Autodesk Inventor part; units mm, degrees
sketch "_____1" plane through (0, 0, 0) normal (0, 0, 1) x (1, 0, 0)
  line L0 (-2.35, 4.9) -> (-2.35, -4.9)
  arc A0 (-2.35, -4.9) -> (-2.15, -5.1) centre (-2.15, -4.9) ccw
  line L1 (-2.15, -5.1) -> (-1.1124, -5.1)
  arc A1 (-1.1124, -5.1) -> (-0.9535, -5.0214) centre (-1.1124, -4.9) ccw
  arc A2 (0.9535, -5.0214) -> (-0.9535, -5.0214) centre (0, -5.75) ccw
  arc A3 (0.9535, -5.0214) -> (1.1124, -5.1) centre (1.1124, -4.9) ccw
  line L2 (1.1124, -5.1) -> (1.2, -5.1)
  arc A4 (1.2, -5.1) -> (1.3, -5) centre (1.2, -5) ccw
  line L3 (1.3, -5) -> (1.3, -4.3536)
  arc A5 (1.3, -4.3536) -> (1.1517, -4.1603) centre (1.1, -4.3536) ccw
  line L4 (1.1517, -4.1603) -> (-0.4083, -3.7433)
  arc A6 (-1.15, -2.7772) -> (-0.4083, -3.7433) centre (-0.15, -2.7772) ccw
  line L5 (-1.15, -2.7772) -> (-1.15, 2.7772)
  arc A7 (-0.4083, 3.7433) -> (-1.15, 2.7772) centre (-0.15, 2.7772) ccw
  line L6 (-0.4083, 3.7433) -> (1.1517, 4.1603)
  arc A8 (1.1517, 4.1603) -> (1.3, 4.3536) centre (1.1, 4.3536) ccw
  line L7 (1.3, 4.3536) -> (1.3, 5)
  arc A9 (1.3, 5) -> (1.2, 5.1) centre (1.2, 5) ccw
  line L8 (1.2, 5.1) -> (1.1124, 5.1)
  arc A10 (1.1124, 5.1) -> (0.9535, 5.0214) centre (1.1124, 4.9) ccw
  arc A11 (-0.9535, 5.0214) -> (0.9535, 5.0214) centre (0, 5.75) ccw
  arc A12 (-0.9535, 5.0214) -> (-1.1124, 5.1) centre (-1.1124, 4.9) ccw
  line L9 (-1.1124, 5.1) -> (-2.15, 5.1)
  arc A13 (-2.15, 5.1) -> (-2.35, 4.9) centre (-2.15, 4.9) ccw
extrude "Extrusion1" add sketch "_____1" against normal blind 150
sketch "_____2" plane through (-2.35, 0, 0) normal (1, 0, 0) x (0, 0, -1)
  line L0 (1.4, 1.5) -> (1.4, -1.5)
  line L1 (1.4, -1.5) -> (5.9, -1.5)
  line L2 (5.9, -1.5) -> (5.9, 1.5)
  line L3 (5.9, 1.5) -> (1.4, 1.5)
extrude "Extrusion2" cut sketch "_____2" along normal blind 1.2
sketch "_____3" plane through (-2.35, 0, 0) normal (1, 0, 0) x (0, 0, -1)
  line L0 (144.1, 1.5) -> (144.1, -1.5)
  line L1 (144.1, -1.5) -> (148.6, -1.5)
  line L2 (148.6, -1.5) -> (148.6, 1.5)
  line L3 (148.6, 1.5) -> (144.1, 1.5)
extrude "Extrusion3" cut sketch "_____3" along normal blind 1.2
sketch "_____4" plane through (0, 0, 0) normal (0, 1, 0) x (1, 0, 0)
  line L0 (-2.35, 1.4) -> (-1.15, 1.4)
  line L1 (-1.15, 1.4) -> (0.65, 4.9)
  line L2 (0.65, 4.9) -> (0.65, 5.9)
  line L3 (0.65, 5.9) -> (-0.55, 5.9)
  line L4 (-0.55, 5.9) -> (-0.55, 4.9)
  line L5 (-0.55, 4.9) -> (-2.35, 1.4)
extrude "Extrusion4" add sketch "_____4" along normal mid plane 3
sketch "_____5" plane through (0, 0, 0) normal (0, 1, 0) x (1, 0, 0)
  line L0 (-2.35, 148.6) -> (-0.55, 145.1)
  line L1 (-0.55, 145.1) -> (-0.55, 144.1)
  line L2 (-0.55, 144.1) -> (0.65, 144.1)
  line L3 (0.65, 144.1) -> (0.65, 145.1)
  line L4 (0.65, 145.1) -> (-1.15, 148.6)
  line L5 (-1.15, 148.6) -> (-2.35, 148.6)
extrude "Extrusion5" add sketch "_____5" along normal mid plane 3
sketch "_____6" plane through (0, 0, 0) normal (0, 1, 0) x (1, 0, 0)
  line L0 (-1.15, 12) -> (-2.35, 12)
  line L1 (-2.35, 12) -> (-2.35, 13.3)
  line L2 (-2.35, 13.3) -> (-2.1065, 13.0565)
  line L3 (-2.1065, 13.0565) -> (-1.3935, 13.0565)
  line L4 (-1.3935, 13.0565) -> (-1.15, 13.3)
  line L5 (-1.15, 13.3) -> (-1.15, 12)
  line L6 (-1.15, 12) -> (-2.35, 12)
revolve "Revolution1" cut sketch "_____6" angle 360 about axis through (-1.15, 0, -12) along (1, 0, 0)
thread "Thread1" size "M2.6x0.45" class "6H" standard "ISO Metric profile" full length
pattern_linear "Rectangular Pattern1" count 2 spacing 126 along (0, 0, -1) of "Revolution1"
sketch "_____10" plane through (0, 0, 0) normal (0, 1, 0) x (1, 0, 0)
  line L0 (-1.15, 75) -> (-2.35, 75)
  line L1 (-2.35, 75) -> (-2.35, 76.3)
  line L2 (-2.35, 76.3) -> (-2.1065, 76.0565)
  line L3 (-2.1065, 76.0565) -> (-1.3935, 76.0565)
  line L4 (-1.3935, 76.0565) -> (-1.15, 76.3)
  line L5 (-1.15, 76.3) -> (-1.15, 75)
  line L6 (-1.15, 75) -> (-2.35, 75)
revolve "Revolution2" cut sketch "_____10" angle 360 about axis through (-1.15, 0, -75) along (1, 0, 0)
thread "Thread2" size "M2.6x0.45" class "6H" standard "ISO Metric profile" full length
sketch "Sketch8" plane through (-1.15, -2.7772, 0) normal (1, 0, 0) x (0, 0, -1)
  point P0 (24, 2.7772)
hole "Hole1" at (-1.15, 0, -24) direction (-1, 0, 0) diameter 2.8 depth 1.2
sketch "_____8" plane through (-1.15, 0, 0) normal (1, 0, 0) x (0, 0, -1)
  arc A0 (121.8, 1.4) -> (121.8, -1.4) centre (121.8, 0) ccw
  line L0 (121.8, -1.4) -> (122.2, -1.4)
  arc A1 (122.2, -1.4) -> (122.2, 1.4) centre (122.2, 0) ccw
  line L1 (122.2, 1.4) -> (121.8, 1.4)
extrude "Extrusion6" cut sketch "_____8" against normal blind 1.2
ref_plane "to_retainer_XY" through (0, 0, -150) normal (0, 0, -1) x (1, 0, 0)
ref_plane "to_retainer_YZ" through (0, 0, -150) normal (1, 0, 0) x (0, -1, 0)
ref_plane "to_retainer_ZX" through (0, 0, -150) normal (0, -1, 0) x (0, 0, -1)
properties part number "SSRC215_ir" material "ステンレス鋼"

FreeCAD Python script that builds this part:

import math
import FreeCAD as App
import Part
import Sketcher
from FreeCAD import Vector

doc = App.newDocument("Part")
params = doc.addObject("Spreadsheet::Sheet", "Params")
for row, (alias, value) in enumerate([
    ("sketch1_radius", "1 mm"),
    ("sketch1_radius2", "0.2 mm"),
    ("sketch1_radius3", "1.2 mm"),
    ("sketch1_radius4", "0.1 mm"),
    ("sketch1_height", "9.8 mm"),
    ("pad1_length", "150 mm"),
    ("sketch2_width", "3 mm"),
    ("sketch2_height", "4.5 mm"),
    ("pocket1_length", "1.2 mm"),
    ("sketch3_width", "3 mm"),
    ("sketch3_height", "4.5 mm"),
    ("pocket2_length", "1.2 mm"),
    ("sketch4_height", "1 mm"),
    ("sketch4_width", "1.2 mm"),
    ("pad2_length", "3 mm"),
    ("sketch5_height", "1 mm"),
    ("sketch5_width", "1.2 mm"),
    ("pad3_length", "3 mm"),
    ("sketch6_width", "1.2 mm"),
    ("sketch6_height", "1.3 mm"),
    ("groove_angle", "360 deg"),
    ("linearpattern_pitch", "126 mm"),
    ("sketch7_width", "1.2 mm"),
    ("sketch7_height", "1.3 mm"),
    ("groove2_angle", "360 deg"),
    ("sketch8_diameter", "2.8 mm"),
    ("hole_diameter", "2.8 mm"),
    ("hole_depth", "1.2 mm"),
    ("sketch9_radius", "1.4 mm"),
    ("sketch9_height", "0.4 mm"),
    ("pocket3_length", "1.2 mm"),
], start=1):
    params.set(f"A{row}", alias)
    params.set(f"B{row}", "=" + value)
    params.setAlias(f"B{row}", alias)

body = doc.addObject("PartDesign::Body", "Body")

# Sketch on XY plane
sketch1 = body.newObject("Sketcher::SketchObject", "Sketch")
sketch1.AttachmentSupport = (doc.getObject("XY_Plane"), [""])
sketch1.MapMode = "FlatFace"
sketch1.addGeometry([
    Part.ArcOfCircle(Part.Circle(Vector(-2.15, 4.9, 0), Vector(0, 0, 1), 0.2), math.radians(90), math.radians(180)),  # 0
    Part.LineSegment(Vector(-2.35, 4.9, 0), Vector(-2.35, -4.9, 0)),  # 1
    Part.ArcOfCircle(Part.Circle(Vector(-2.15, -4.9, 0), Vector(0, 0, 1), 0.2), math.radians(180), math.radians(270)),  # 2
    Part.LineSegment(Vector(-2.15, -5.1, 0), Vector(-1.11, -5.1, 0)),  # 3
    Part.ArcOfCircle(Part.Circle(Vector(-1.11, -4.9, 0), Vector(0, 0, 1), 0.2), math.radians(-90), math.radians(-37)),  # 4
    Part.ArcOfCircle(Part.Circle(Vector(0, -5.75, 0), Vector(0, 0, 1), 1.2), math.radians(37), math.radians(143)),  # 5
    Part.ArcOfCircle(Part.Circle(Vector(1.11, -4.9, 0), Vector(0, 0, 1), 0.2), math.radians(-143), math.radians(-90)),  # 6
    Part.LineSegment(Vector(1.11, -5.1, 0), Vector(1.2, -5.1, 0)),  # 7
    Part.ArcOfCircle(Part.Circle(Vector(1.2, -5, 0), Vector(0, 0, 1), 0.1), math.radians(-90), math.radians(0)),  # 8
    Part.LineSegment(Vector(1.3, -5, 0), Vector(1.3, -4.35, 0)),  # 9
    Part.ArcOfCircle(Part.Circle(Vector(1.1, -4.35, 0), Vector(0, 0, 1), 0.2), math.radians(0), math.radians(75)),  # 10
    Part.LineSegment(Vector(1.15, -4.16, 0), Vector(-0.41, -3.74, 0)),  # 11
    Part.ArcOfCircle(Part.Circle(Vector(-0.15, -2.78, 0), Vector(0, 0, 1), 1), math.radians(180), math.radians(255)),  # 12
    Part.LineSegment(Vector(-1.15, -2.78, 0), Vector(-1.15, 2.78, 0)),  # 13
    Part.ArcOfCircle(Part.Circle(Vector(-0.15, 2.78, 0), Vector(0, 0, 1), 1), math.radians(105), math.radians(180)),  # 14
    Part.LineSegment(Vector(-0.41, 3.74, 0), Vector(1.15, 4.16, 0)),  # 15
    Part.ArcOfCircle(Part.Circle(Vector(1.1, 4.35, 0), Vector(0, 0, 1), 0.2), math.radians(-75), math.radians(0)),  # 16
    Part.LineSegment(Vector(1.3, 4.35, 0), Vector(1.3, 5, 0)),  # 17
    Part.ArcOfCircle(Part.Circle(Vector(1.2, 5, 0), Vector(0, 0, 1), 0.1), math.radians(0), math.radians(90)),  # 18
    Part.LineSegment(Vector(1.2, 5.1, 0), Vector(1.11, 5.1, 0)),  # 19
    Part.ArcOfCircle(Part.Circle(Vector(1.11, 4.9, 0), Vector(0, 0, 1), 0.2), math.radians(90), math.radians(143)),  # 20
    Part.ArcOfCircle(Part.Circle(Vector(0, 5.75, 0), Vector(0, 0, 1), 1.2), math.radians(-143), math.radians(-37)),  # 21
    Part.ArcOfCircle(Part.Circle(Vector(-1.11, 4.9, 0), Vector(0, 0, 1), 0.2), math.radians(37), math.radians(90)),  # 22
    Part.LineSegment(Vector(-1.11, 5.1, 0), Vector(-2.15, 5.1, 0)),  # 23
], False)
sketch1.addConstraint([
    Sketcher.Constraint("Tangent", 0, 2, 1, 1),
    Sketcher.Constraint("Tangent", 1, 2, 2, 1),
    Sketcher.Constraint("Tangent", 2, 2, 3, 1),
    Sketcher.Constraint("Tangent", 3, 2, 4, 1),
    Sketcher.Constraint("Tangent", 4, 2, 5, 2),
    Sketcher.Constraint("Tangent", 5, 1, 6, 1),
    Sketcher.Constraint("Tangent", 6, 2, 7, 1),
    Sketcher.Constraint("Tangent", 7, 2, 8, 1),
    Sketcher.Constraint("Tangent", 8, 2, 9, 1),
    Sketcher.Constraint("Tangent", 9, 2, 10, 1),
    Sketcher.Constraint("Tangent", 10, 2, 11, 1),
    Sketcher.Constraint("Tangent", 11, 2, 12, 2),
    Sketcher.Constraint("Tangent", 12, 1, 13, 1),
    Sketcher.Constraint("Tangent", 13, 2, 14, 2),
    Sketcher.Constraint("Tangent", 14, 1, 15, 1),
    Sketcher.Constraint("Tangent", 15, 2, 16, 1),
    Sketcher.Constraint("Tangent", 16, 2, 17, 1),
    Sketcher.Constraint("Tangent", 17, 2, 18, 1),
    Sketcher.Constraint("Tangent", 18, 2, 19, 1),
    Sketcher.Constraint("Tangent", 19, 2, 20, 1),
    Sketcher.Constraint("Tangent", 20, 2, 21, 2),
    Sketcher.Constraint("Tangent", 21, 1, 22, 1),
    Sketcher.Constraint("Tangent", 22, 2, 23, 1),
    Sketcher.Constraint("Tangent", 23, 2, 0, 1),
    Sketcher.Constraint("Vertical", 1),
    Sketcher.Constraint("Horizontal", 3),
    Sketcher.Constraint("Horizontal", 7),
    Sketcher.Constraint("Vertical", 9),
    Sketcher.Constraint("Vertical", 13),
    Sketcher.Constraint("Vertical", 17),
    Sketcher.Constraint("Horizontal", 19),
    Sketcher.Constraint("Horizontal", 23),
    Sketcher.Constraint("Equal", 0, 2),
    Sketcher.Constraint("Equal", 2, 4),
    Sketcher.Constraint("Equal", 4, 6),
    Sketcher.Constraint("Equal", 6, 10),
    Sketcher.Constraint("Equal", 12, 14),
    Sketcher.Constraint("Equal", 10, 16),
    Sketcher.Constraint("Equal", 8, 18),
    Sketcher.Constraint("Equal", 16, 20),
    Sketcher.Constraint("Equal", 5, 21),
    Sketcher.Constraint("Equal", 20, 22),
    Sketcher.Constraint("Symmetric", 4, 3, 20, 3, -1, 1),
    Sketcher.Constraint("Symmetric", 6, 3, 22, 3, -1, 1),
    Sketcher.Constraint("Symmetric", 4, 3, 6, 3, -2),
    Sketcher.Constraint("Symmetric", 10, 3, 16, 3, -1),
    Sketcher.Constraint("Vertical", 11, 2, 14, 1),
    Sketcher.Constraint("Radius", 12, 1.0),
    Sketcher.Constraint("Radius", 0, 0.2),
    Sketcher.Constraint("Radius", 5, 1.2),
    Sketcher.Constraint("Radius", 8, 0.1),
    Sketcher.Constraint("DistanceY", 1, 2, 1, 1, 9.8),
    Sketcher.Constraint("DistanceX", 2, 3, 12, 3, 2.0),
    Sketcher.Constraint("DistanceX", -1, 1, 8, 3, 1.2),
    Sketcher.Constraint("DistanceX", 0, 3, -1, 1, 2.15),
    Sketcher.Constraint("DistanceY", 5, 3, -1, 1, 5.75),
    Sketcher.Constraint("DistanceX", 11, 2, 10, 2, 1.56),
    Sketcher.Constraint("DistanceY", 9, 1, 9, 2, 0.6464),
])
sketch1.setExpression("Constraints[47]", "Params.sketch1_radius")
sketch1.setExpression("Constraints[48]", "Params.sketch1_radius2")
sketch1.setExpression("Constraints[49]", "Params.sketch1_radius3")
sketch1.setExpression("Constraints[50]", "Params.sketch1_radius4")
sketch1.setExpression("Constraints[51]", "Params.sketch1_height")
pad1 = body.newObject("PartDesign::Pad", "Pad")
pad1.Profile = sketch1
pad1.setExpression("Length", "Params.pad1_length")
pad1.Reversed = True

# Sketch on YZ plane
sketch2 = body.newObject("Sketcher::SketchObject", "Sketch001")
sketch2.AttachmentSupport = (doc.getObject("YZ_Plane"), [""])
sketch2.MapMode = "FlatFace"
sketch2.AttachmentOffset = App.Placement(Vector(0, 0, -2.35), App.Rotation())
sketch2.addGeometry([
    Part.LineSegment(Vector(1.5, -5.9, 0), Vector(1.5, -1.4, 0)),
    Part.LineSegment(Vector(1.5, -1.4, 0), Vector(-1.5, -1.4, 0)),
    Part.LineSegment(Vector(-1.5, -1.4, 0), Vector(-1.5, -5.9, 0)),
    Part.LineSegment(Vector(-1.5, -5.9, 0), Vector(1.5, -5.9, 0)),
], False)
sketch2.addConstraint([
    Sketcher.Constraint("Coincident", 0, 2, 1, 1),
    Sketcher.Constraint("Coincident", 1, 2, 2, 1),
    Sketcher.Constraint("Coincident", 2, 2, 3, 1),
    Sketcher.Constraint("Coincident", 3, 2, 0, 1),
    Sketcher.Constraint("Vertical", 0),
    Sketcher.Constraint("Horizontal", 1),
    Sketcher.Constraint("Vertical", 2),
    Sketcher.Constraint("Horizontal", 3),
    Sketcher.Constraint("DistanceX", 1, 2, 1, 1, 3.0),
    Sketcher.Constraint("DistanceY", 0, 1, 0, 2, 4.5),
    Sketcher.Constraint("DistanceX", -1, 1, 0, 2, 1.5),
    Sketcher.Constraint("DistanceY", 0, 2, -1, 1, 1.4),
])
sketch2.setExpression("Constraints[8]", "Params.sketch2_width")
sketch2.setExpression("Constraints[9]", "Params.sketch2_height")
pocket1 = body.newObject("PartDesign::Pocket", "Pocket")
pocket1.Profile = sketch2
pocket1.setExpression("Length", "Params.pocket1_length")
pocket1.Reversed = True

# Sketch on YZ plane
sketch3 = body.newObject("Sketcher::SketchObject", "Sketch002")
sketch3.AttachmentSupport = (doc.getObject("YZ_Plane"), [""])
sketch3.MapMode = "FlatFace"
sketch3.AttachmentOffset = App.Placement(Vector(0, 0, -2.35), App.Rotation())
sketch3.addGeometry([
    Part.LineSegment(Vector(1.5, -148.6, 0), Vector(1.5, -144.1, 0)),
    Part.LineSegment(Vector(1.5, -144.1, 0), Vector(-1.5, -144.1, 0)),
    Part.LineSegment(Vector(-1.5, -144.1, 0), Vector(-1.5, -148.6, 0)),
    Part.LineSegment(Vector(-1.5, -148.6, 0), Vector(1.5, -148.6, 0)),
], False)
sketch3.addConstraint([
    Sketcher.Constraint("Coincident", 0, 2, 1, 1),
    Sketcher.Constraint("Coincident", 1, 2, 2, 1),
    Sketcher.Constraint("Coincident", 2, 2, 3, 1),
    Sketcher.Constraint("Coincident", 3, 2, 0, 1),
    Sketcher.Constraint("Vertical", 0),
    Sketcher.Constraint("Horizontal", 1),
    Sketcher.Constraint("Vertical", 2),
    Sketcher.Constraint("Horizontal", 3),
    Sketcher.Constraint("DistanceX", 1, 2, 1, 1, 3.0),
    Sketcher.Constraint("DistanceY", 0, 1, 0, 2, 4.5),
    Sketcher.Constraint("DistanceX", -1, 1, 0, 2, 1.5),
    Sketcher.Constraint("DistanceY", 0, 2, -1, 1, 144.1),
])
sketch3.setExpression("Constraints[8]", "Params.sketch3_width")
sketch3.setExpression("Constraints[9]", "Params.sketch3_height")
pocket2 = body.newObject("PartDesign::Pocket", "Pocket001")
pocket2.Profile = sketch3
pocket2.setExpression("Length", "Params.pocket2_length")
pocket2.Reversed = True

# Sketch on XZ plane
sketch4 = body.newObject("Sketcher::SketchObject", "Sketch003")
sketch4.AttachmentSupport = (doc.getObject("XZ_Plane"), [""])
sketch4.MapMode = "FlatFace"
sketch4.addGeometry([
    Part.LineSegment(Vector(-0.6, -4.9, 0), Vector(-2.4, -1.4, 0)),  # 0
    Part.LineSegment(Vector(-2.4, -1.4, 0), Vector(-1.1, -1.4, 0)),  # 1
    Part.LineSegment(Vector(-1.1, -1.4, 0), Vector(0.7, -4.9, 0)),  # 2
    Part.LineSegment(Vector(0.7, -4.9, 0), Vector(0.7, -5.9, 0)),  # 3
    Part.LineSegment(Vector(0.7, -5.9, 0), Vector(-0.6, -5.9, 0)),  # 4
    Part.LineSegment(Vector(-0.6, -5.9, 0), Vector(-0.6, -4.9, 0)),  # 5
], False)
sketch4.addConstraint([
    Sketcher.Constraint("Coincident", 0, 2, 1, 1),
    Sketcher.Constraint("Coincident", 1, 2, 2, 1),
    Sketcher.Constraint("Coincident", 2, 2, 3, 1),
    Sketcher.Constraint("Coincident", 3, 2, 4, 1),
    Sketcher.Constraint("Coincident", 4, 2, 5, 1),
    Sketcher.Constraint("Coincident", 5, 2, 0, 1),
    Sketcher.Constraint("Horizontal", 1),
    Sketcher.Constraint("Vertical", 3),
    Sketcher.Constraint("Horizontal", 4),
    Sketcher.Constraint("Vertical", 5),
    Sketcher.Constraint("Parallel", 0, 2),
    Sketcher.Constraint("Horizontal", 2, 2, 5, 2),
    Sketcher.Constraint("DistanceY", 3, 2, 3, 1, 1.0),
    Sketcher.Constraint("DistanceX", 1, 1, 1, 2, 1.2),
    Sketcher.Constraint("DistanceX", 0, 2, 2, 2, 3.0),
    Sketcher.Constraint("DistanceY", 0, 2, -1, 1, 1.4),
    Sketcher.Constraint("DistanceY", 2, 2, -1, 1, 4.9),
    Sketcher.Constraint("DistanceX", 0, 2, -1, 1, 2.35),
])
sketch4.setExpression("Constraints[12]", "Params.sketch4_height")
sketch4.setExpression("Constraints[13]", "Params.sketch4_width")
pad2 = body.newObject("PartDesign::Pad", "Pad001")
pad2.Profile = sketch4
pad2.setExpression("Length", "Params.pad2_length")
pad2.Midplane = True

# Sketch on XZ plane
sketch5 = body.newObject("Sketcher::SketchObject", "Sketch004")
sketch5.AttachmentSupport = (doc.getObject("XZ_Plane"), [""])
sketch5.MapMode = "FlatFace"
sketch5.addGeometry([
    Part.LineSegment(Vector(-1.1, -148.6, 0), Vector(-2.4, -148.6, 0)),  # 0
    Part.LineSegment(Vector(-2.4, -148.6, 0), Vector(-0.6, -145.1, 0)),  # 1
    Part.LineSegment(Vector(-0.6, -145.1, 0), Vector(-0.6, -144.1, 0)),  # 2
    Part.LineSegment(Vector(-0.6, -144.1, 0), Vector(0.7, -144.1, 0)),  # 3
    Part.LineSegment(Vector(0.7, -144.1, 0), Vector(0.7, -145.1, 0)),  # 4
    Part.LineSegment(Vector(0.7, -145.1, 0), Vector(-1.1, -148.6, 0)),  # 5
], False)
sketch5.addConstraint([
    Sketcher.Constraint("Coincident", 0, 2, 1, 1),
    Sketcher.Constraint("Coincident", 1, 2, 2, 1),
    Sketcher.Constraint("Coincident", 2, 2, 3, 1),
    Sketcher.Constraint("Coincident", 3, 2, 4, 1),
    Sketcher.Constraint("Coincident", 4, 2, 5, 1),
    Sketcher.Constraint("Coincident", 5, 2, 0, 1),
    Sketcher.Constraint("Horizontal", 0),
    Sketcher.Constraint("Vertical", 2),
    Sketcher.Constraint("Horizontal", 3),
    Sketcher.Constraint("Vertical", 4),
    Sketcher.Constraint("Parallel", 1, 5),
    Sketcher.Constraint("Horizontal", 1, 2, 4, 2),
    Sketcher.Constraint("DistanceY", 2, 1, 2, 2, 1.0),
    Sketcher.Constraint("DistanceX", 0, 2, 0, 1, 1.2),
    Sketcher.Constraint("DistanceX", 0, 2, 3, 2, 3.0),
    Sketcher.Constraint("DistanceY", 0, 2, -1, 1, 148.6),
    Sketcher.Constraint("DistanceY", 1, 2, -1, 1, 145.1),
    Sketcher.Constraint("DistanceX", 0, 2, -1, 1, 2.35),
])
sketch5.setExpression("Constraints[12]", "Params.sketch5_height")
sketch5.setExpression("Constraints[13]", "Params.sketch5_width")
pad3 = body.newObject("PartDesign::Pad", "Pad002")
pad3.Profile = sketch5
pad3.setExpression("Length", "Params.pad3_length")
pad3.Midplane = True

# Sketch on XZ plane
sketch6 = body.newObject("Sketcher::SketchObject", "Sketch005")
sketch6.AttachmentSupport = (doc.getObject("XZ_Plane"), [""])
sketch6.MapMode = "FlatFace"
sketch6.addGeometry([
    Part.LineSegment(Vector(-2.35, -12, 0), Vector(-1.15, -12, 0)),  # 0
    Part.LineSegment(Vector(-1.15, -12, 0), Vector(-1.15, -13.3, 0)),  # 1
    Part.LineSegment(Vector(-1.15, -13.3, 0), Vector(-1.39, -13.06, 0)),  # 2
    Part.LineSegment(Vector(-1.39, -13.06, 0), Vector(-2.11, -13.06, 0)),  # 3
    Part.LineSegment(Vector(-2.11, -13.06, 0), Vector(-2.35, -13.3, 0)),  # 4
    Part.LineSegment(Vector(-2.35, -13.3, 0), Vector(-2.35, -12, 0)),  # 5
], False)
sketch6.addGeometry(Part.LineSegment(Vector(-2.35, -12, 0), Vector(-1.15, -12, 0)), True)  # axis
sketch6.addConstraint([
    Sketcher.Constraint("Coincident", 0, 2, 1, 1),
    Sketcher.Constraint("Coincident", 1, 2, 2, 1),
    Sketcher.Constraint("Coincident", 2, 2, 3, 1),
    Sketcher.Constraint("Coincident", 3, 2, 4, 1),
    Sketcher.Constraint("Coincident", 4, 2, 5, 1),
    Sketcher.Constraint("Coincident", 5, 2, 0, 1),
    Sketcher.Constraint("Horizontal", 0),
    Sketcher.Constraint("Vertical", 1),
    Sketcher.Constraint("Horizontal", 3),
    Sketcher.Constraint("Vertical", 5),
    Sketcher.Constraint("Horizontal", 6),
    Sketcher.Constraint("Coincident", 6, 1, 5, 2),
    Sketcher.Constraint("Perpendicular", 2, 4),
    Sketcher.Constraint("Horizontal", 1, 2, 4, 2),
    Sketcher.Constraint("Vertical", 1, 2, 6, 2),
    Sketcher.Constraint("Equal", 2, 4),
    Sketcher.Constraint("DistanceX", 0, 1, 0, 2, 1.2),
    Sketcher.Constraint("DistanceY", 1, 2, 1, 1, 1.3),
    Sketcher.Constraint("DistanceY", 0, 2, -1, 1, 12.0),
    Sketcher.Constraint("DistanceX", 3, 2, 3, 1, 0.713),
    Sketcher.Constraint("DistanceX", 0, 2, -1, 1, 1.15),
])
sketch6.setExpression("Constraints[16]", "Params.sketch6_width")
sketch6.setExpression("Constraints[17]", "Params.sketch6_height")
groove = body.newObject("PartDesign::Groove", "Groove")
groove.Profile = sketch6
groove.ReferenceAxis = (sketch6, ["Axis0"])
groove.setExpression("Angle", "Params.groove_angle")
doc.recompute()

linearpattern = body.newObject("PartDesign::LinearPattern", "LinearPattern")
linearpattern.Originals = [groove]
linearpattern.Direction = (doc.getObject("Z_Axis"), [""])
linearpattern.Mode = "offset"
linearpattern.setExpression("Offset", "Params.linearpattern_pitch")
linearpattern.Occurrences = 2
linearpattern.Reversed = True
body.Tip = linearpattern

# Sketch on XZ plane
sketch7 = body.newObject("Sketcher::SketchObject", "Sketch006")
sketch7.AttachmentSupport = (doc.getObject("XZ_Plane"), [""])
sketch7.MapMode = "FlatFace"
sketch7.addGeometry([
    Part.LineSegment(Vector(-2.35, -75, 0), Vector(-1.15, -75, 0)),  # 0
    Part.LineSegment(Vector(-1.15, -75, 0), Vector(-1.15, -76.3, 0)),  # 1
    Part.LineSegment(Vector(-1.15, -76.3, 0), Vector(-1.39, -76.06, 0)),  # 2
    Part.LineSegment(Vector(-1.39, -76.06, 0), Vector(-2.11, -76.06, 0)),  # 3
    Part.LineSegment(Vector(-2.11, -76.06, 0), Vector(-2.35, -76.3, 0)),  # 4
    Part.LineSegment(Vector(-2.35, -76.3, 0), Vector(-2.35, -75, 0)),  # 5
], False)
sketch7.addGeometry(Part.LineSegment(Vector(-2.35, -75, 0), Vector(-1.15, -75, 0)), True)  # axis
sketch7.addConstraint([
    Sketcher.Constraint("Coincident", 0, 2, 1, 1),
    Sketcher.Constraint("Coincident", 1, 2, 2, 1),
    Sketcher.Constraint("Coincident", 2, 2, 3, 1),
    Sketcher.Constraint("Coincident", 3, 2, 4, 1),
    Sketcher.Constraint("Coincident", 4, 2, 5, 1),
    Sketcher.Constraint("Coincident", 5, 2, 0, 1),
    Sketcher.Constraint("Horizontal", 0),
    Sketcher.Constraint("Vertical", 1),
    Sketcher.Constraint("Horizontal", 3),
    Sketcher.Constraint("Vertical", 5),
    Sketcher.Constraint("Horizontal", 6),
    Sketcher.Constraint("Coincident", 6, 1, 5, 2),
    Sketcher.Constraint("Perpendicular", 2, 4),
    Sketcher.Constraint("Horizontal", 1, 2, 4, 2),
    Sketcher.Constraint("Vertical", 1, 2, 6, 2),
    Sketcher.Constraint("Equal", 2, 4),
    Sketcher.Constraint("DistanceX", 0, 1, 0, 2, 1.2),
    Sketcher.Constraint("DistanceY", 1, 2, 1, 1, 1.3),
    Sketcher.Constraint("DistanceY", 0, 2, -1, 1, 75.0),
    Sketcher.Constraint("DistanceX", 3, 2, 3, 1, 0.713),
    Sketcher.Constraint("DistanceX", 0, 2, -1, 1, 1.15),
])
sketch7.setExpression("Constraints[16]", "Params.sketch7_width")
sketch7.setExpression("Constraints[17]", "Params.sketch7_height")
groove2 = body.newObject("PartDesign::Groove", "Groove001")
groove2.Profile = sketch7
groove2.ReferenceAxis = (sketch7, ["Axis0"])
groove2.setExpression("Angle", "Params.groove2_angle")

# Sketch on YZ plane
sketch8 = body.newObject("Sketcher::SketchObject", "Sketch007")
sketch8.AttachmentSupport = (doc.getObject("YZ_Plane"), [""])
sketch8.MapMode = "FlatFace"
sketch8.AttachmentOffset = App.Placement(Vector(0, 0, -1.15), App.Rotation())
sketch8.addGeometry(Part.Circle(Vector(0, -24, 0), Vector(0, 0, 1), 1.4), False)
sketch8.addConstraint([
    Sketcher.Constraint("PointOnObject", 0, 3, -2),
    Sketcher.Constraint("Diameter", 0, 2.8),
    Sketcher.Constraint("DistanceY", 0, 3, -1, 1, 24.0),
])
sketch8.setExpression("Constraints[1]", "Params.sketch8_diameter")
doc.recompute()
hole = body.newObject("PartDesign::Hole", "Hole")
hole.Profile = sketch8
hole.ThreadType = "None"
hole.setExpression("Diameter", "Params.hole_diameter")
hole.DepthType = "Dimension"
hole.setExpression("Depth", "Params.hole_depth")
hole.DrillPoint = "Flat"

# Sketch on YZ plane
sketch9 = body.newObject("Sketcher::SketchObject", "Sketch008")
sketch9.AttachmentSupport = (doc.getObject("YZ_Plane"), [""])
sketch9.MapMode = "FlatFace"
sketch9.AttachmentOffset = App.Placement(Vector(0, 0, -1.15), App.Rotation())
sketch9.addGeometry([
    Part.LineSegment(Vector(1.4, -122.2, 0), Vector(1.4, -121.8, 0)),
    Part.ArcOfCircle(Part.Circle(Vector(0, -121.8, 0), Vector(0, 0, 1), 1.4), math.radians(0), math.radians(180)),
    Part.LineSegment(Vector(-1.4, -121.8, 0), Vector(-1.4, -122.2, 0)),
    Part.ArcOfCircle(Part.Circle(Vector(0, -122.2, 0), Vector(0, 0, 1), 1.4), math.radians(180), math.radians(360)),
], False)
sketch9.addConstraint([
    Sketcher.Constraint("Tangent", 0, 2, 1, 1),
    Sketcher.Constraint("Tangent", 1, 2, 2, 1),
    Sketcher.Constraint("Tangent", 2, 2, 3, 1),
    Sketcher.Constraint("Tangent", 3, 2, 0, 1),
    Sketcher.Constraint("Vertical", 0),
    Sketcher.Constraint("Vertical", 2),
    Sketcher.Constraint("PointOnObject", 1, 3, -2),
    Sketcher.Constraint("Radius", 1, 1.4),
    Sketcher.Constraint("DistanceY", 0, 1, 0, 2, 0.4),
    Sketcher.Constraint("DistanceY", 1, 3, -1, 1, 121.8),
])
sketch9.setExpression("Constraints[7]", "Params.sketch9_radius")
sketch9.setExpression("Constraints[8]", "Params.sketch9_height")
pocket3 = body.newObject("PartDesign::Pocket", "Pocket002")
pocket3.Profile = sketch9
pocket3.setExpression("Length", "Params.pocket3_length")

doc.recompute()
